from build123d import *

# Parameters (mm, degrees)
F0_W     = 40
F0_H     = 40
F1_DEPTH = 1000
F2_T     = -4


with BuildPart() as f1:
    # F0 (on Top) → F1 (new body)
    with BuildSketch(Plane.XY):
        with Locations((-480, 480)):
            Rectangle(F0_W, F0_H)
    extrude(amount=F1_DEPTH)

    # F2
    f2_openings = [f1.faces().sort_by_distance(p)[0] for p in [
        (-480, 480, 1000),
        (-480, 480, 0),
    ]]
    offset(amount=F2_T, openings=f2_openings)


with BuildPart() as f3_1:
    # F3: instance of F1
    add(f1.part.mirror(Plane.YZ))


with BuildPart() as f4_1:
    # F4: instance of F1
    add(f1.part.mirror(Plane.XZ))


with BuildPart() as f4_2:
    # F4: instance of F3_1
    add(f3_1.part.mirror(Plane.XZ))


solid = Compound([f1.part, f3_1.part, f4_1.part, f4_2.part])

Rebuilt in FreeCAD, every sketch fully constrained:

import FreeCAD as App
import Part
import Sketcher
from FreeCAD import Vector
Q = App.Units.Quantity


def faces_at(feature, points):
    """Names of the faces that lie closest to the given points."""
    faces = feature.Shape.Faces
    near = lambda p: min(range(len(faces)), key=lambda i: faces[i].distToShape(Part.Vertex(*p))[0])
    return sorted({f"Face{near(p) + 1}" for p in points})

doc = App.newDocument("Part")
body = doc.addObject("PartDesign::Body", "Body")

# Sketch on XY plane
sketch1 = body.newObject("Sketcher::SketchObject", "Sketch")
sketch1.AttachmentSupport = (doc.getObject("XY_Plane"), [""])
sketch1.MapMode = "FlatFace"
sketch1.addGeometry([
    Part.LineSegment(Vector(-500, 500, 0), Vector(-500, 460, 0)),
    Part.LineSegment(Vector(-500, 460, 0), Vector(-460, 460, 0)),
    Part.LineSegment(Vector(-460, 460, 0), Vector(-460, 500, 0)),
    Part.LineSegment(Vector(-460, 500, 0), Vector(-500, 500, 0)),
], False)
sketch1.addConstraint([
    Sketcher.Constraint("Coincident", 0, 2, 1, 1),
    Sketcher.Constraint("Coincident", 1, 2, 2, 1),
    Sketcher.Constraint("Coincident", 2, 2, 3, 1),
    Sketcher.Constraint("Coincident", 3, 2, 0, 1),
    Sketcher.Constraint("Vertical", 0),
    Sketcher.Constraint("Horizontal", 1),
    Sketcher.Constraint("Vertical", 2),
    Sketcher.Constraint("Horizontal", 3),
    Sketcher.Constraint("Equal", 3, 0),
    Sketcher.Constraint("DistanceX", 1, 1, 1, 2, Q("40 mm")),
    Sketcher.Constraint("DistanceX", 0, 2, -1, 1, Q("500 mm")),
    Sketcher.Constraint("DistanceY", -1, 1, 0, 2, Q("460 mm")),
])
pad1 = body.newObject("PartDesign::Pad", "Pad")
pad1.Profile = sketch1
pad1.Length = 1000
doc.recompute()

thickness = body.newObject("PartDesign::Thickness", "Thickness")
thickness.Base = (pad1, faces_at(pad1, [(-480, 480, 1000), (-480, 480, 0)]))
thickness.Value = 4
thickness.Reversed = True
thickness.Join = "Arc"
body2 = doc.addObject("PartDesign::Body", "Body001")
doc.recompute()

mirroring = doc.addObject("Part::Mirroring", "Mirroring")
mirroring.Source = body
mirroring.Base = Vector(0, 0, 0)
mirroring.Normal = Vector(1, 0, 0)
body2.BaseFeature = mirroring
doc.recompute()
body3 = doc.addObject("PartDesign::Body", "Body002")
doc.recompute()

mirroring2 = doc.addObject("Part::Mirroring", "Mirroring001")
mirroring2.Source = body
mirroring2.Base = Vector(0, 0, 0)
mirroring2.Normal = Vector(0, -1, 0)
body3.BaseFeature = mirroring2
doc.recompute()
body4 = doc.addObject("PartDesign::Body", "Body003")
doc.recompute()

mirroring3 = doc.addObject("Part::Mirroring", "Mirroring002")
mirroring3.Source = body2
mirroring3.Base = Vector(0, 0, 0)
mirroring3.Normal = Vector(0, -1, 0)
body4.BaseFeature = mirroring3
doc.recompute()
mirroring.Visibility = False
mirroring2.Visibility = False
mirroring3.Visibility = False

doc.recompute()
